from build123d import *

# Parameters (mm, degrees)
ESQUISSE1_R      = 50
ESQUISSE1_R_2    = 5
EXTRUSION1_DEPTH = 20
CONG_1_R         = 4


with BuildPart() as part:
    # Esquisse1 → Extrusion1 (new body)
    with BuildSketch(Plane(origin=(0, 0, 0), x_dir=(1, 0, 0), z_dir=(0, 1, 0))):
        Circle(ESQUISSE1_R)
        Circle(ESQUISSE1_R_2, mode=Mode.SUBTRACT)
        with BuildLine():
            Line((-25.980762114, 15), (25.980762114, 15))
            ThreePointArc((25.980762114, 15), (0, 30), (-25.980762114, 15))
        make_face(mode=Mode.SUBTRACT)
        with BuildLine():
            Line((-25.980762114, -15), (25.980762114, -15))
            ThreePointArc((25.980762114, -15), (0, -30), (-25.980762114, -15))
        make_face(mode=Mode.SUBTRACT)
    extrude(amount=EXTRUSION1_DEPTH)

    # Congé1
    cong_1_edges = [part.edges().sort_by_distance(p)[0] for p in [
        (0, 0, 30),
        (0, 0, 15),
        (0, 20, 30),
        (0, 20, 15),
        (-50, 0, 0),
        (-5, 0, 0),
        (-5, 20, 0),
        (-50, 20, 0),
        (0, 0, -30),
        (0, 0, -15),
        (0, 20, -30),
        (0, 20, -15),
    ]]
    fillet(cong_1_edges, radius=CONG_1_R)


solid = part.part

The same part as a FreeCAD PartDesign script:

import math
import FreeCAD as App
import Part
import Sketcher
from FreeCAD import Vector


def edges_at(feature, points):
    """Names of the edges that pass closest to the given points."""
    edges = feature.Shape.Edges
    near = lambda p: min(range(len(edges)), key=lambda i: edges[i].distToShape(Part.Vertex(*p))[0])
    return sorted({f"Edge{near(p) + 1}" for p in points})

doc = App.newDocument("Part")
body = doc.addObject("PartDesign::Body", "Body")

# Sketch on XZ plane
sketch1 = body.newObject("Sketcher::SketchObject", "Sketch")
sketch1.AttachmentSupport = (doc.getObject("XZ_Plane"), [""])
sketch1.MapMode = "FlatFace"
sketch1.addGeometry(Part.Circle(Vector(0, 0, 0), Vector(0, 0, 1), 50), False)
sketch1.addGeometry(Part.ArcOfCircle(Part.Circle(Vector(0, 0, 0), Vector(0, 0, 1), 30), math.radians(30), math.radians(150)), False)
sketch1.addGeometry(Part.LineSegment(Vector(-25.980762, 15, 0), Vector(25.980762, 15, 0)), False)
sketch1.addGeometry(Part.Circle(Vector(0, 0, 0), Vector(0, 0, 1), 5), False)
sketch1.addGeometry(Part.LineSegment(Vector(25.980762, -15, 0), Vector(-25.980762, -15, 0)), False)
sketch1.addGeometry(Part.ArcOfCircle(Part.Circle(Vector(0, 0, 0), Vector(0, 0, 1), 30), math.radians(-150), math.radians(-30)), False)
sketch1.addConstraint(Sketcher.Constraint("Coincident", 1, 1, 2, 2))
sketch1.addConstraint(Sketcher.Constraint("Coincident", 2, 1, 1, 2))
sketch1.addConstraint(Sketcher.Constraint("Coincident", 4, 1, 5, 2))
sketch1.addConstraint(Sketcher.Constraint("Coincident", 5, 1, 4, 2))
sketch1.addConstraint(Sketcher.Constraint("Horizontal", 2))
sketch1.addConstraint(Sketcher.Constraint("Horizontal", 4))
sketch1.addConstraint(Sketcher.Constraint("Coincident", 0, 3, -1, 1))
sketch1.addConstraint(Sketcher.Constraint("Coincident", 1, 3, -1, 1))
sketch1.addConstraint(Sketcher.Constraint("Coincident", 3, 3, -1, 1))
sketch1.addConstraint(Sketcher.Constraint("Coincident", 5, 3, -1, 1))
sketch1.addConstraint(Sketcher.Constraint("Equal", 1, 5))
sketch1.addConstraint(Sketcher.Constraint("Vertical", 1, 1, 4, 1))
sketch1.addConstraint(Sketcher.Constraint("Diameter", 0, 100.0))
sketch1.addConstraint(Sketcher.Constraint("Diameter", 3, 10.0))
sketch1.addConstraint(Sketcher.Constraint("Radius", 1, 30.0))
sketch1.addConstraint(Sketcher.Constraint("DistanceY", -1, 1, 1, 1, 15.0))
pad1 = body.newObject("PartDesign::Pad", "Pad")
pad1.Profile = sketch1
pad1.Length = 20
pad1.Reversed = True
doc.recompute()

fillet = body.newObject("PartDesign::Fillet", "Fillet")
fillet.Base = (pad1, edges_at(pad1, [
    (0, 0, 30),
    (0, 0, 15),
    (0, 20, 30),
    (0, 20, 15),
    (-50, 0, 0),
    (-5, 0, 0),
    (-5, 20, 0),
    (-50, 20, 0),
    (0, 0, -30),
    (0, 0, -15),
    (0, 20, -30),
    (0, 20, -15),
]))
fillet.Radius = 4

doc.recompute()
